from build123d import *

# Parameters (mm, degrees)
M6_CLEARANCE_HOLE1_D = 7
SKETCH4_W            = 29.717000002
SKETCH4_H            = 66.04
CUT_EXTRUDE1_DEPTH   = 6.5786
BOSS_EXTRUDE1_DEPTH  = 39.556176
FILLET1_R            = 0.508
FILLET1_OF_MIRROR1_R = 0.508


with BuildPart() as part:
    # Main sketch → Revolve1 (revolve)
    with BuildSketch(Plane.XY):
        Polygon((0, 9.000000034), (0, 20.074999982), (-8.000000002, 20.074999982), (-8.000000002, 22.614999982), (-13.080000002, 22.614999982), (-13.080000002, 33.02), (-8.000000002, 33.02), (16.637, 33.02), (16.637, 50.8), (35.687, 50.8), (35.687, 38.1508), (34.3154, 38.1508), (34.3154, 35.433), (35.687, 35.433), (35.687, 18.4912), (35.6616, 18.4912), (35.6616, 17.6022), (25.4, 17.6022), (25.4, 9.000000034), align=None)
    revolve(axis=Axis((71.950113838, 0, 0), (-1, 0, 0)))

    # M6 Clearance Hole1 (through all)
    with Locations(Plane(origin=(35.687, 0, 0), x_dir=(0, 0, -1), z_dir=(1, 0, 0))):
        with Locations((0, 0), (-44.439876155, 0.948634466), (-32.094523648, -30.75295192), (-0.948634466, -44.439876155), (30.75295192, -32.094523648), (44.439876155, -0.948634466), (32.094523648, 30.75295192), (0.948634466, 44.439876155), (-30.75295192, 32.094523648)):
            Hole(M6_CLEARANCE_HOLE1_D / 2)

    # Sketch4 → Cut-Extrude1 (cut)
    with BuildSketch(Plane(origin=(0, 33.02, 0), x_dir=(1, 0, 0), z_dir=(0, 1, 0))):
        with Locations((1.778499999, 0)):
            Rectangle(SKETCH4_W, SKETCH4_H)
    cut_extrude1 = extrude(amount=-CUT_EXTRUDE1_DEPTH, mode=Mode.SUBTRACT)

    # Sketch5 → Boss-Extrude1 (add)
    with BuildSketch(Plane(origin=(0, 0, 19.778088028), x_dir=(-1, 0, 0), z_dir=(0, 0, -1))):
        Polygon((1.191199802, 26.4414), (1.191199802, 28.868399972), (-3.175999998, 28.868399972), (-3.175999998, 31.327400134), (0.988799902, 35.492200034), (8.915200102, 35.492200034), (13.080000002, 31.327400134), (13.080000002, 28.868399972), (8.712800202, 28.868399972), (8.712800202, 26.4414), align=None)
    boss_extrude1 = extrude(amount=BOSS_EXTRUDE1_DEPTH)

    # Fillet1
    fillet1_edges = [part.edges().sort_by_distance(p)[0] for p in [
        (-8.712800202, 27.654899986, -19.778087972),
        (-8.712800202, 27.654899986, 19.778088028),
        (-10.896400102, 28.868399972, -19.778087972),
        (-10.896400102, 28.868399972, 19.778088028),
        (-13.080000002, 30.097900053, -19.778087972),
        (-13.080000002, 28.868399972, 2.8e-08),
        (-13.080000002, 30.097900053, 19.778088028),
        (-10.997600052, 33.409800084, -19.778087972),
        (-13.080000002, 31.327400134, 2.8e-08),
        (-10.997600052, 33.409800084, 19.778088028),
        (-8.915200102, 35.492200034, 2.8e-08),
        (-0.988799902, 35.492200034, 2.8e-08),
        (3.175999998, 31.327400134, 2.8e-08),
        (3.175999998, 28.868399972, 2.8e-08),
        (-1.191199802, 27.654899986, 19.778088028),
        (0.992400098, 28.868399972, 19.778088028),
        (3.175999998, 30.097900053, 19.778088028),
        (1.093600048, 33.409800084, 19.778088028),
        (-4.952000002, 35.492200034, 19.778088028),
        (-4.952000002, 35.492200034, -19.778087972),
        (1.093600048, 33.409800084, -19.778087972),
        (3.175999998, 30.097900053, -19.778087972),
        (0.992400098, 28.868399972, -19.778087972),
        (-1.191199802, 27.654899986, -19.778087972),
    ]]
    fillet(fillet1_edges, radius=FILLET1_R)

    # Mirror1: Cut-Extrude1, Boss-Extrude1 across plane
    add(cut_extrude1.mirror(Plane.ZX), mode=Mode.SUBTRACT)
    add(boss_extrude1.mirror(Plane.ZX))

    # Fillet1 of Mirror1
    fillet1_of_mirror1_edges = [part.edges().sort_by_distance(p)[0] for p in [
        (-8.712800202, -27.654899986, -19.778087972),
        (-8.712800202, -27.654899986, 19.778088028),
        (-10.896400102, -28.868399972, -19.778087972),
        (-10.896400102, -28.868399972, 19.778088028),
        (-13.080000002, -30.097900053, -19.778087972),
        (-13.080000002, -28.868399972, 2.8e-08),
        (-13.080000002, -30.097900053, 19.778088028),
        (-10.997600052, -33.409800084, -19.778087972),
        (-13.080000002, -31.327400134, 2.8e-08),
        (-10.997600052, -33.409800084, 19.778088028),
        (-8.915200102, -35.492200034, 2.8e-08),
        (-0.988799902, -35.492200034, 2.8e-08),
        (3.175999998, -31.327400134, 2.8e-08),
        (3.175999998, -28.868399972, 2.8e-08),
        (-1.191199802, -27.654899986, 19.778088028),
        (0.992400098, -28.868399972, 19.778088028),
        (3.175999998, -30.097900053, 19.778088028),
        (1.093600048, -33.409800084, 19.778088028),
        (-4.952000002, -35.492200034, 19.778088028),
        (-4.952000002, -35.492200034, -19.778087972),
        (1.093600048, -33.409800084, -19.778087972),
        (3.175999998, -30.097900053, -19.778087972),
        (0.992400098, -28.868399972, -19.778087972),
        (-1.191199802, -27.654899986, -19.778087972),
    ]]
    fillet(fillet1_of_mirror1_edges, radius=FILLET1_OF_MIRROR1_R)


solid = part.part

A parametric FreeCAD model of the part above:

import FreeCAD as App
import Part
import Sketcher
Q = App.Units.Quantity


def edges_at(feature, points):
    """Names of the edges that pass closest to the given points."""
    edges = feature.Shape.Edges
    near = lambda p: min(range(len(edges)), key=lambda i: edges[i].distToShape(Part.Vertex(*p))[0])
    return sorted({f"Edge{near(p) + 1}" for p in points})

doc = App.newDocument("Part")
body = doc.addObject("PartDesign::Body", "Body")

sketch1 = body.newObject("Sketcher::SketchObject", "Sketch")
sketch1.AttachmentSupport = (doc.getObject("XY_Plane"), [""])
sketch1.MapMode = "FlatFace"
sketch1.addGeometry([
    Part.LineSegment(App.Vector(0, 20.075, 0), App.Vector(0, 9, 0)),
    Part.LineSegment(App.Vector(0, 9, 0), App.Vector(25.4, 9, 0)),
    Part.LineSegment(App.Vector(25.4, 9, 0), App.Vector(25.4, 17.602, 0)),
    Part.LineSegment(App.Vector(25.4, 17.602, 0), App.Vector(35.662, 17.602, 0)),
    Part.LineSegment(App.Vector(35.662, 17.602, 0), App.Vector(35.662, 18.491, 0)),
    Part.LineSegment(App.Vector(35.662, 18.491, 0), App.Vector(35.687, 18.491, 0)),
    Part.LineSegment(App.Vector(35.687, 18.491, 0), App.Vector(35.687, 35.433, 0)),
    Part.LineSegment(App.Vector(35.687, 35.433, 0), App.Vector(34.315, 35.433, 0)),
    Part.LineSegment(App.Vector(34.315, 35.433, 0), App.Vector(34.315, 38.151, 0)),
    Part.LineSegment(App.Vector(34.315, 38.151, 0), App.Vector(35.687, 38.151, 0)),
    Part.LineSegment(App.Vector(35.687, 38.151, 0), App.Vector(35.687, 50.8, 0)),
    Part.LineSegment(App.Vector(35.687, 50.8, 0), App.Vector(16.637, 50.8, 0)),
    Part.LineSegment(App.Vector(16.637, 50.8, 0), App.Vector(16.637, 33.02, 0)),
    Part.LineSegment(App.Vector(16.637, 33.02, 0), App.Vector(-13.08, 33.02, 0)),
    Part.LineSegment(App.Vector(-13.08, 33.02, 0), App.Vector(-13.08, 22.615, 0)),
    Part.LineSegment(App.Vector(-13.08, 22.615, 0), App.Vector(-8, 22.615, 0)),
    Part.LineSegment(App.Vector(-8, 22.615, 0), App.Vector(-8, 20.075, 0)),
    Part.LineSegment(App.Vector(-8, 20.075, 0), App.Vector(0, 20.075, 0)),
], False)
sketch1.addConstraint([
    Sketcher.Constraint("Coincident", 0, 2, 1, 1),
    Sketcher.Constraint("Coincident", 1, 2, 2, 1),
    Sketcher.Constraint("Coincident", 2, 2, 3, 1),
    Sketcher.Constraint("Coincident", 3, 2, 4, 1),
    Sketcher.Constraint("Coincident", 4, 2, 5, 1),
    Sketcher.Constraint("Coincident", 5, 2, 6, 1),
    Sketcher.Constraint("Coincident", 6, 2, 7, 1),
    Sketcher.Constraint("Coincident", 7, 2, 8, 1),
    Sketcher.Constraint("Coincident", 8, 2, 9, 1),
    Sketcher.Constraint("Coincident", 9, 2, 10, 1),
    Sketcher.Constraint("Coincident", 10, 2, 11, 1),
    Sketcher.Constraint("Coincident", 11, 2, 12, 1),
    Sketcher.Constraint("Coincident", 12, 2, 13, 1),
    Sketcher.Constraint("Coincident", 13, 2, 14, 1),
    Sketcher.Constraint("Coincident", 14, 2, 15, 1),
    Sketcher.Constraint("Coincident", 15, 2, 16, 1),
    Sketcher.Constraint("Coincident", 16, 2, 17, 1),
    Sketcher.Constraint("Coincident", 17, 2, 0, 1),
    Sketcher.Constraint("Vertical", 0),
    Sketcher.Constraint("Horizontal", 1),
    Sketcher.Constraint("Vertical", 2),
    Sketcher.Constraint("Horizontal", 3),
    Sketcher.Constraint("Vertical", 4),
    Sketcher.Constraint("Horizontal", 5),
    Sketcher.Constraint("Vertical", 6),
    Sketcher.Constraint("Horizontal", 7),
    Sketcher.Constraint("Vertical", 8),
    Sketcher.Constraint("Horizontal", 9),
    Sketcher.Constraint("Vertical", 10),
    Sketcher.Constraint("Horizontal", 11),
    Sketcher.Constraint("Vertical", 12),
    Sketcher.Constraint("Horizontal", 13),
    Sketcher.Constraint("Vertical", 14),
    Sketcher.Constraint("Horizontal", 15),
    Sketcher.Constraint("Vertical", 16),
    Sketcher.Constraint("Horizontal", 17),
    Sketcher.Constraint("PointOnObject", 0, 2, -2),
    Sketcher.Constraint("Vertical", 6, 2, 9, 2),
    Sketcher.Constraint("DistanceX", 1, 1, 1, 2, Q("1 in")),
    Sketcher.Constraint("DistanceX", 15, 1, 15, 2, Q("0.2 in")),
    Sketcher.Constraint("DistanceY", 12, 2, 12, 1, Q("0.7 in")),
    Sketcher.Constraint("DistanceY", 16, 2, 16, 1, Q("0.1 in")),
    Sketcher.Constraint("DistanceY", -1, 1, 10, 2, Q("2 in")),
    Sketcher.Constraint("DistanceX", 11, 2, 11, 1, Q("0.75 in")),
    Sketcher.Constraint("DistanceX", 3, 1, 3, 2, Q("0.404 in")),
    Sketcher.Constraint("DistanceX", 5, 1, 5, 2, Q("0.001 in")),
    Sketcher.Constraint("DistanceX", 7, 2, 7, 1, Q("0.054 in")),
    Sketcher.Constraint("DistanceY", 4, 1, 4, 2, Q("0.035 in")),
    Sketcher.Constraint("DistanceY", 6, 1, 6, 2, Q("0.667 in")),
    Sketcher.Constraint("DistanceY", 8, 1, 8, 2, Q("0.107 in")),
    Sketcher.Constraint("DistanceY", 10, 1, 10, 2, Q("0.498 in")),
    Sketcher.Constraint("DistanceX", 13, 2, 13, 1, Q("29.717 mm")),
    Sketcher.Constraint("DistanceY", 0, 2, 0, 1, Q("11.075 mm")),
    Sketcher.Constraint("DistanceY", 2, 1, 2, 2, Q("8.6022 mm")),
])
revolution = body.newObject("PartDesign::Revolution", "Revolution")
revolution.Profile = sketch1
revolution.ReferenceAxis = (sketch1, ["H_Axis"])
revolution.Angle = 360

sketch2 = body.newObject("Sketcher::SketchObject", "Sketch001")
sketch2.AttachmentSupport = (doc.getObject("YZ_Plane"), [""])
sketch2.MapMode = "FlatFace"
sketch2.AttachmentOffset = App.Placement(App.Vector(0, 0, 1.405 * 25.4), App.Rotation())
sketch2.addGeometry([
    Part.Circle(App.Vector(0, 0, 0), App.Vector(0, 0, 1), 3.5),
    Part.Circle(App.Vector(0.9, 44.4, 0), App.Vector(0, 0, 1), 3.5),
    Part.Circle(App.Vector(-30.8, 32.1, 0), App.Vector(0, 0, 1), 3.5),
    Part.Circle(App.Vector(-44.4, 0.9, 0), App.Vector(0, 0, 1), 3.5),
    Part.Circle(App.Vector(-32.1, -30.8, 0), App.Vector(0, 0, 1), 3.5),
    Part.Circle(App.Vector(-0.9, -44.4, 0), App.Vector(0, 0, 1), 3.5),
    Part.Circle(App.Vector(30.8, -32.1, 0), App.Vector(0, 0, 1), 3.5),
    Part.Circle(App.Vector(44.4, -0.9, 0), App.Vector(0, 0, 1), 3.5),
    Part.Circle(App.Vector(32.1, 30.8, 0), App.Vector(0, 0, 1), 3.5),
], False)
sketch2.addConstraint([
    Sketcher.Constraint("Coincident", 0, 3, -1, 1),
    Sketcher.Constraint("Equal", 0, 1),
    Sketcher.Constraint("Equal", 1, 2),
    Sketcher.Constraint("Equal", 2, 3),
    Sketcher.Constraint("Equal", 3, 4),
    Sketcher.Constraint("Equal", 4, 5),
    Sketcher.Constraint("Equal", 5, 6),
    Sketcher.Constraint("Equal", 6, 7),
    Sketcher.Constraint("Equal", 7, 8),
    Sketcher.Constraint("Symmetric", 1, 3, 5, 3, -1, 1),
    Sketcher.Constraint("Symmetric", 2, 3, 6, 3, -1, 1),
    Sketcher.Constraint("Symmetric", 3, 3, 7, 3, -1, 1),
    Sketcher.Constraint("Symmetric", 4, 3, 8, 3, -1, 1),
    Sketcher.Constraint("Diameter", 0, Q("7 mm")),
    Sketcher.Constraint("DistanceY", 5, 3, 2, 3, Q("76.5344 mm")),
    Sketcher.Constraint("DistanceX", 2, 3, -1, 1, Q("30.752952 mm")),
    Sketcher.Constraint("DistanceY", 4, 3, -1, 1, Q("30.752952 mm")),
    Sketcher.Constraint("DistanceY", 3, 3, 2, 3, Q("31.145889 mm")),
    Sketcher.Constraint("DistanceX", 3, 3, 1, 3, Q("45.388511 mm")),
    Sketcher.Constraint("DistanceY", 3, 3, 1, 3, Q("43.491242 mm")),
    Sketcher.Constraint("DistanceX", 4, 3, 2, 3, Q("1.341572 mm")),
    Sketcher.Constraint("DistanceX", 4, 3, 1, 3, Q("33.043158 mm")),
])
doc.recompute()
hole = body.newObject("PartDesign::Hole", "Hole")
hole.Profile = sketch2
hole.ThreadType = "None"
hole.Diameter = 7
hole.DepthType = "ThroughAll"

sketch3 = body.newObject("Sketcher::SketchObject", "Sketch002")
sketch3.AttachmentSupport = (doc.getObject("XZ_Plane"), [""])
sketch3.MapMode = "FlatFace"
sketch3.AttachmentOffset = App.Placement(App.Vector(0, 0, -1.3 * 25.4), App.Rotation())
sketch3.addGeometry([
    Part.LineSegment(App.Vector(-13, -33, 0), App.Vector(-13, 33, 0)),
    Part.LineSegment(App.Vector(-13, 33, 0), App.Vector(17, 33, 0)),
    Part.LineSegment(App.Vector(17, 33, 0), App.Vector(17, -33, 0)),
    Part.LineSegment(App.Vector(17, -33, 0), App.Vector(-13, -33, 0)),
], False)
sketch3.addConstraint([
    Sketcher.Constraint("Coincident", 0, 2, 1, 1),
    Sketcher.Constraint("Coincident", 1, 2, 2, 1),
    Sketcher.Constraint("Coincident", 2, 2, 3, 1),
    Sketcher.Constraint("Coincident", 3, 2, 0, 1),
    Sketcher.Constraint("Vertical", 0),
    Sketcher.Constraint("Horizontal", 1),
    Sketcher.Constraint("Vertical", 2),
    Sketcher.Constraint("Horizontal", 3),
    Sketcher.Constraint("DistanceY", 0, 1, 0, 2, Q("2.6 in")),
    Sketcher.Constraint("DistanceY", -1, 1, 0, 2, Q("1.3 in")),
    Sketcher.Constraint("DistanceX", -1, 1, 1, 2, Q("0.655 in")),
    Sketcher.Constraint("DistanceX", 1, 1, 1, 2, Q("29.717 mm")),
])
pocket1 = body.newObject("PartDesign::Pocket", "Pocket")
pocket1.Profile = sketch3
pocket1.Length = Q("0.259 in")
pocket1.Reversed = True

sketch4 = body.newObject("Sketcher::SketchObject", "Sketch003")
sketch4.AttachmentSupport = (doc.getObject("XY_Plane"), [""])
sketch4.MapMode = "FlatFace"
sketch4.AttachmentOffset = App.Placement(App.Vector(0, 0, 19.778088), App.Rotation())
sketch4.addGeometry([
    Part.LineSegment(App.Vector(-1.2, 28.9, 0), App.Vector(-1.2, 26.4, 0)),
    Part.LineSegment(App.Vector(-1.2, 26.4, 0), App.Vector(-8.7, 26.4, 0)),
    Part.LineSegment(App.Vector(-8.7, 26.4, 0), App.Vector(-8.7, 28.9, 0)),
    Part.LineSegment(App.Vector(-8.7, 28.9, 0), App.Vector(-13.1, 28.9, 0)),
    Part.LineSegment(App.Vector(-13.1, 28.9, 0), App.Vector(-13.1, 31.3, 0)),
    Part.LineSegment(App.Vector(-13.1, 31.3, 0), App.Vector(-8.9, 35.5, 0)),
    Part.LineSegment(App.Vector(-8.9, 35.5, 0), App.Vector(-1, 35.5, 0)),
    Part.LineSegment(App.Vector(-1, 35.5, 0), App.Vector(3.2, 31.3, 0)),
    Part.LineSegment(App.Vector(3.2, 31.3, 0), App.Vector(3.2, 28.9, 0)),
    Part.LineSegment(App.Vector(3.2, 28.9, 0), App.Vector(-1.2, 28.9, 0)),
], False)
sketch4.addConstraint([
    Sketcher.Constraint("Coincident", 0, 2, 1, 1),
    Sketcher.Constraint("Coincident", 1, 2, 2, 1),
    Sketcher.Constraint("Coincident", 2, 2, 3, 1),
    Sketcher.Constraint("Coincident", 3, 2, 4, 1),
    Sketcher.Constraint("Coincident", 4, 2, 5, 1),
    Sketcher.Constraint("Coincident", 5, 2, 6, 1),
    Sketcher.Constraint("Coincident", 6, 2, 7, 1),
    Sketcher.Constraint("Coincident", 7, 2, 8, 1),
    Sketcher.Constraint("Coincident", 8, 2, 9, 1),
    Sketcher.Constraint("Coincident", 9, 2, 0, 1),
    Sketcher.Constraint("Vertical", 0),
    Sketcher.Constraint("Horizontal", 1),
    Sketcher.Constraint("Vertical", 2),
    Sketcher.Constraint("Horizontal", 3),
    Sketcher.Constraint("Vertical", 4),
    Sketcher.Constraint("Horizontal", 6),
    Sketcher.Constraint("Vertical", 8),
    Sketcher.Constraint("Horizontal", 9),
    Sketcher.Constraint("Perpendicular", 5, 7),
    Sketcher.Constraint("Horizontal", 4, 2, 7, 2),
    Sketcher.Constraint("Horizontal", 3, 2, 8, 2),
    Sketcher.Constraint("Equal", 3, 9),
    Sketcher.Constraint("Equal", 5, 7),
    Sketcher.Constraint("DistanceY", -1, 1, 0, 2, Q("1.041 in")),
    Sketcher.Constraint("DistanceX", 1, 2, 1, 1, Q("7.5216 mm")),
    Sketcher.Constraint("DistanceX", 3, 2, 3, 1, Q("4.3672 mm")),
    Sketcher.Constraint("DistanceX", 6, 1, 6, 2, Q("7.9264 mm")),
    Sketcher.Constraint("DistanceY", 0, 2, 0, 1, Q("2.427 mm")),
    Sketcher.Constraint("DistanceY", 4, 1, 4, 2, Q("2.459 mm")),
    Sketcher.Constraint("DistanceX", 0, 2, -1, 1, Q("1.1912 mm")),
])
pad1 = body.newObject("PartDesign::Pad", "Pad")
pad1.Profile = sketch4
pad1.Length = 39.556176
pad1.Reversed = True
doc.recompute()

fillet = body.newObject("PartDesign::Fillet", "Fillet")
fillet.Base = (pad1, edges_at(pad1, [
    (-8.713, 27.655, -19.778),
    (-8.713, 27.655, 19.778),
    (-10.896, 28.868, -19.778),
    (-10.896, 28.868, 19.778),
    (-13.08, 30.098, -19.778),
    (-13.08, 28.868, 0),
    (-13.08, 30.098, 19.778),
    (-10.998, 33.41, -19.778),
    (-13.08, 31.327, 0),
    (-10.998, 33.41, 19.778),
    (-8.915, 35.492, 0),
    (-0.989, 35.492, 0),
    (3.176, 31.327, 0),
    (3.176, 28.868, 0),
    (-1.191, 27.655, 19.778),
    (0.992, 28.868, 19.778),
    (3.176, 30.098, 19.778),
    (1.094, 33.41, 19.778),
    (-4.952, 35.492, 19.778),
    (-4.952, 35.492, -19.778),
    (1.094, 33.41, -19.778),
    (3.176, 30.098, -19.778),
    (0.992, 28.868, -19.778),
    (-1.191, 27.655, -19.778),
]))
fillet.Radius = Q("0.02 in")
doc.recompute()

mirrored = body.newObject("PartDesign::Mirrored", "Mirrored")
mirrored.Originals = [pocket1, pad1]
mirrored.MirrorPlane = (doc.getObject("XZ_Plane"), [""])
body.Tip = mirrored
doc.recompute()

fillet2 = body.newObject("PartDesign::Fillet", "Fillet001")
fillet2.Base = (mirrored, edges_at(mirrored, [
    (-8.713, -27.655, -19.778),
    (-8.713, -27.655, 19.778),
    (-10.896, -28.868, -19.778),
    (-10.896, -28.868, 19.778),
    (-13.08, -30.098, -19.778),
    (-13.08, -28.868, 0),
    (-13.08, -30.098, 19.778),
    (-10.998, -33.41, -19.778),
    (-13.08, -31.327, 0),
    (-10.998, -33.41, 19.778),
    (-8.915, -35.492, 0),
    (-0.989, -35.492, 0),
    (3.176, -31.327, 0),
    (3.176, -28.868, 0),
    (-1.191, -27.655, 19.778),
    (0.992, -28.868, 19.778),
    (3.176, -30.098, 19.778),
    (1.094, -33.41, 19.778),
    (-4.952, -35.492, 19.778),
    (-4.952, -35.492, -19.778),
    (1.094, -33.41, -19.778),
    (3.176, -30.098, -19.778),
    (0.992, -28.868, -19.778),
    (-1.191, -27.655, -19.778),
]))
fillet2.Radius = Q("0.02 in")

doc.recompute()
